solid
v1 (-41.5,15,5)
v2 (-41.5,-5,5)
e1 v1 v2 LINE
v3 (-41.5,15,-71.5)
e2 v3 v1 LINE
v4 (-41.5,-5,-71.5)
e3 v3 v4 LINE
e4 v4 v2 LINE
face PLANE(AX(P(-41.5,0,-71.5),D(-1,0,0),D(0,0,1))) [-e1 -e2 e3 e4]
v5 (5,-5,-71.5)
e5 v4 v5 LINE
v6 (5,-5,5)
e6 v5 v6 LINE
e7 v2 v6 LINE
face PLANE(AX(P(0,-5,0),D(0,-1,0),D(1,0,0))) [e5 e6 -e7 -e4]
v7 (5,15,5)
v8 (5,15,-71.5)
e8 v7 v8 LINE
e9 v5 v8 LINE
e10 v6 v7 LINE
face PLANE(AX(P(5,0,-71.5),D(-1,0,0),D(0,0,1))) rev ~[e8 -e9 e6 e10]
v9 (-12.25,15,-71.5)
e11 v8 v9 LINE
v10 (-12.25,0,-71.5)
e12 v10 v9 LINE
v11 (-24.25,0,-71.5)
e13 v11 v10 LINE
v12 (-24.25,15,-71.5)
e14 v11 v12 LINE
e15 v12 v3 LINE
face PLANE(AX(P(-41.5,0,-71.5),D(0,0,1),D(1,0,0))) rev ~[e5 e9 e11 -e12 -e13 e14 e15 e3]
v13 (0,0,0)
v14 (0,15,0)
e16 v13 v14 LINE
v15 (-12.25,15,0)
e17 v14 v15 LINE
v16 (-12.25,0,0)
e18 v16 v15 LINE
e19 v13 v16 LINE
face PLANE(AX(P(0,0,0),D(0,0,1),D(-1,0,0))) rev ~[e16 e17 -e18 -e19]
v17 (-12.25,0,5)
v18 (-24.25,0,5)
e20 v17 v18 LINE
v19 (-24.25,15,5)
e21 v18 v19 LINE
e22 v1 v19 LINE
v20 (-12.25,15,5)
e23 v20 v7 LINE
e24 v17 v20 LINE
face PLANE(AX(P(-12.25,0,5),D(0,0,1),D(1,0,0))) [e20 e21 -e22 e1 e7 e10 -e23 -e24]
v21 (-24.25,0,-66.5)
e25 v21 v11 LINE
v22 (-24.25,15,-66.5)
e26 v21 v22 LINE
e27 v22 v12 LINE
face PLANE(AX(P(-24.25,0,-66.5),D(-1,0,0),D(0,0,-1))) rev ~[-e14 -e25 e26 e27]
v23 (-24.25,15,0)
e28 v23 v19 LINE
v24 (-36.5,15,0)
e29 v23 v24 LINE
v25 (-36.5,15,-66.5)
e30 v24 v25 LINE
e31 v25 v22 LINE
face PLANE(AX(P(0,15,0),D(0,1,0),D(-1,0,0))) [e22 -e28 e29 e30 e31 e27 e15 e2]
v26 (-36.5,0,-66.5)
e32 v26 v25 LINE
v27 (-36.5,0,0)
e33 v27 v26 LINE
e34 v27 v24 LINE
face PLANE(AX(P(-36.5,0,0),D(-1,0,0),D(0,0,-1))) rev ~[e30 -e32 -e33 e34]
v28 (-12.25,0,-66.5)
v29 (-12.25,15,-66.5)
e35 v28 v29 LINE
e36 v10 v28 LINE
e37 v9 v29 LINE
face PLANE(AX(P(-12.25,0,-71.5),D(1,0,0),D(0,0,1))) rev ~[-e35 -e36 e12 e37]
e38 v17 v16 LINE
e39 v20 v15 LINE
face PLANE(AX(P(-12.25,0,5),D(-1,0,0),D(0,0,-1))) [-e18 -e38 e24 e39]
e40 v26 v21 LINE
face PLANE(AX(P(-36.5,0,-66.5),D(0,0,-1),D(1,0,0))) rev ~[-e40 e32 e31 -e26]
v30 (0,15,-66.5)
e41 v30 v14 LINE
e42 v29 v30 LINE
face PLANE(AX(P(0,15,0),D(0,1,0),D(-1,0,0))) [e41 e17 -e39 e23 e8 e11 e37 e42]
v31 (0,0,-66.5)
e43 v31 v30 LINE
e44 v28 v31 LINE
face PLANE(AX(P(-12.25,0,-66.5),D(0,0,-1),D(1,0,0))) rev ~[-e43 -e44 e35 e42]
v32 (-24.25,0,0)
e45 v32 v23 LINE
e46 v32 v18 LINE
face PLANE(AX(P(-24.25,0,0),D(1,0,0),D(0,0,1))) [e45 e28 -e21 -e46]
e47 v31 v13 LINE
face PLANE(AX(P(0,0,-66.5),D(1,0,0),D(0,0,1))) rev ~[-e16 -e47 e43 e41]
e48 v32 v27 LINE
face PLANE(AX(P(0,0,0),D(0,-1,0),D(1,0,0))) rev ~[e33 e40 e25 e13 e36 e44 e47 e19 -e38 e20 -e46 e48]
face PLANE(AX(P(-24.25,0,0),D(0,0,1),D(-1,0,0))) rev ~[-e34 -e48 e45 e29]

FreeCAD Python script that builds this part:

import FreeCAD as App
import Part
import Sketcher
Q = App.Units.Quantity


def add_polygon(sketch, points):
    """Adds a closed chain of lines whose ends are joined by coincident constraints."""
    first, n = sketch.GeometryCount, len(points)
    for a, b in zip(points, points[1:] + points[:1]):
        sketch.addGeometry(Part.LineSegment(App.Vector(*a, 0), App.Vector(*b, 0)), False)
    for i in range(n):
        sketch.addConstraint(Sketcher.Constraint("Coincident", first + i, 2, first + (i + 1) % n, 1))

doc = App.newDocument("Part")
body = doc.addObject("PartDesign::Body", "Body")
body.AllowCompound = True

# Sketch on XZ plane
sketch1 = doc.addObject("Sketcher::SketchObject", "Sketch")
body.addObject(sketch1)
sketch1.AttachmentSupport = (doc.XZ_Plane, [""])
sketch1.MapMode = "FlatFace"
add_polygon(sketch1, [(0, -66), (0, 0), (-12, 0), (-12, 5), (5, 5), (5, -72), (-12, -72), (-12, -66)])  # lines 0-7
add_polygon(sketch1, [(-24, 5), (-24, 0), (-36, 0), (-36, -66), (-24, -66), (-24, -72), (-42, -72), (-42, 5)])  # lines 8-15
sketch1.addConstraint([
    Sketcher.Constraint("Vertical", 0),
    Sketcher.Constraint("Horizontal", 1),
    Sketcher.Constraint("Vertical", 2),
    Sketcher.Constraint("Horizontal", 3),
    Sketcher.Constraint("Vertical", 4),
    Sketcher.Constraint("Horizontal", 5),
    Sketcher.Constraint("Vertical", 6),
    Sketcher.Constraint("Horizontal", 7),
    Sketcher.Constraint("Vertical", 8),
    Sketcher.Constraint("Horizontal", 9),
    Sketcher.Constraint("Vertical", 10),
    Sketcher.Constraint("Horizontal", 11),
    Sketcher.Constraint("Vertical", 12),
    Sketcher.Constraint("Horizontal", 13),
    Sketcher.Constraint("Vertical", 14),
    Sketcher.Constraint("Horizontal", 15),
    Sketcher.Constraint("Coincident", 0, 2, -1, 1),
    Sketcher.Constraint("PointOnObject", 8, 2, -1),
    Sketcher.Constraint("Horizontal", 7, 2, 10, 2),
    Sketcher.Constraint("Horizontal", 5, 2, 12, 2),
    Sketcher.Constraint("Horizontal", 3, 2, 14, 2),
    Sketcher.Constraint("Vertical", 2, 2, 5, 2),
    Sketcher.Constraint("Vertical", 8, 2, 11, 2),
    Sketcher.Constraint("Equal", 7, 9),
    Sketcher.Constraint("Equal", 5, 13),
    Sketcher.Constraint("Equal", 2, 6),
    Sketcher.Constraint("DistanceY", 2, 1, 2, 2, Q("5 mm")),
    Sketcher.Constraint("DistanceY", 0, 1, 0, 2, Q("66.5 mm")),
    Sketcher.Constraint("DistanceX", -1, 1, 3, 2, Q("5 mm")),
    Sketcher.Constraint("DistanceX", 8, 2, 1, 2, Q("12 mm")),
    Sketcher.Constraint("DistanceX", 9, 2, -1, 1, Q("36.5 mm")),
])
pad1 = doc.addObject("PartDesign::Pad", "Pad")
body.addObject(pad1)
pad1.Profile = sketch1
pad1.Length = 15
pad1.Reversed = True

# Sketch on XZ plane
sketch2 = doc.addObject("Sketcher::SketchObject", "Sketch001")
body.addObject(sketch2)
sketch2.AttachmentSupport = (doc.XZ_Plane, [""])
sketch2.MapMode = "FlatFace"
add_polygon(sketch2, [(5, 5), (-42, 5), (-42, -72), (5, -72)])  # lines 0-3
sketch2.addConstraint([
    Sketcher.Constraint("Horizontal", 0),
    Sketcher.Constraint("Vertical", 1),
    Sketcher.Constraint("Horizontal", 2),
    Sketcher.Constraint("Vertical", 3),
    Sketcher.Constraint("DistanceX", 0, 2, 0, 1, Q("46.5 mm")),
    Sketcher.Constraint("DistanceY", 1, 2, 1, 1, Q("76.5 mm")),
    Sketcher.Constraint("DistanceY", -1, 1, 0, 2, Q("5 mm")),
    Sketcher.Constraint("DistanceX", -1, 1, 2, 2, Q("5 mm")),
])
pad2 = doc.addObject("PartDesign::Pad", "Pad001")
body.addObject(pad2)
pad2.Profile = sketch2
pad2.Length = 5

doc.recompute()
